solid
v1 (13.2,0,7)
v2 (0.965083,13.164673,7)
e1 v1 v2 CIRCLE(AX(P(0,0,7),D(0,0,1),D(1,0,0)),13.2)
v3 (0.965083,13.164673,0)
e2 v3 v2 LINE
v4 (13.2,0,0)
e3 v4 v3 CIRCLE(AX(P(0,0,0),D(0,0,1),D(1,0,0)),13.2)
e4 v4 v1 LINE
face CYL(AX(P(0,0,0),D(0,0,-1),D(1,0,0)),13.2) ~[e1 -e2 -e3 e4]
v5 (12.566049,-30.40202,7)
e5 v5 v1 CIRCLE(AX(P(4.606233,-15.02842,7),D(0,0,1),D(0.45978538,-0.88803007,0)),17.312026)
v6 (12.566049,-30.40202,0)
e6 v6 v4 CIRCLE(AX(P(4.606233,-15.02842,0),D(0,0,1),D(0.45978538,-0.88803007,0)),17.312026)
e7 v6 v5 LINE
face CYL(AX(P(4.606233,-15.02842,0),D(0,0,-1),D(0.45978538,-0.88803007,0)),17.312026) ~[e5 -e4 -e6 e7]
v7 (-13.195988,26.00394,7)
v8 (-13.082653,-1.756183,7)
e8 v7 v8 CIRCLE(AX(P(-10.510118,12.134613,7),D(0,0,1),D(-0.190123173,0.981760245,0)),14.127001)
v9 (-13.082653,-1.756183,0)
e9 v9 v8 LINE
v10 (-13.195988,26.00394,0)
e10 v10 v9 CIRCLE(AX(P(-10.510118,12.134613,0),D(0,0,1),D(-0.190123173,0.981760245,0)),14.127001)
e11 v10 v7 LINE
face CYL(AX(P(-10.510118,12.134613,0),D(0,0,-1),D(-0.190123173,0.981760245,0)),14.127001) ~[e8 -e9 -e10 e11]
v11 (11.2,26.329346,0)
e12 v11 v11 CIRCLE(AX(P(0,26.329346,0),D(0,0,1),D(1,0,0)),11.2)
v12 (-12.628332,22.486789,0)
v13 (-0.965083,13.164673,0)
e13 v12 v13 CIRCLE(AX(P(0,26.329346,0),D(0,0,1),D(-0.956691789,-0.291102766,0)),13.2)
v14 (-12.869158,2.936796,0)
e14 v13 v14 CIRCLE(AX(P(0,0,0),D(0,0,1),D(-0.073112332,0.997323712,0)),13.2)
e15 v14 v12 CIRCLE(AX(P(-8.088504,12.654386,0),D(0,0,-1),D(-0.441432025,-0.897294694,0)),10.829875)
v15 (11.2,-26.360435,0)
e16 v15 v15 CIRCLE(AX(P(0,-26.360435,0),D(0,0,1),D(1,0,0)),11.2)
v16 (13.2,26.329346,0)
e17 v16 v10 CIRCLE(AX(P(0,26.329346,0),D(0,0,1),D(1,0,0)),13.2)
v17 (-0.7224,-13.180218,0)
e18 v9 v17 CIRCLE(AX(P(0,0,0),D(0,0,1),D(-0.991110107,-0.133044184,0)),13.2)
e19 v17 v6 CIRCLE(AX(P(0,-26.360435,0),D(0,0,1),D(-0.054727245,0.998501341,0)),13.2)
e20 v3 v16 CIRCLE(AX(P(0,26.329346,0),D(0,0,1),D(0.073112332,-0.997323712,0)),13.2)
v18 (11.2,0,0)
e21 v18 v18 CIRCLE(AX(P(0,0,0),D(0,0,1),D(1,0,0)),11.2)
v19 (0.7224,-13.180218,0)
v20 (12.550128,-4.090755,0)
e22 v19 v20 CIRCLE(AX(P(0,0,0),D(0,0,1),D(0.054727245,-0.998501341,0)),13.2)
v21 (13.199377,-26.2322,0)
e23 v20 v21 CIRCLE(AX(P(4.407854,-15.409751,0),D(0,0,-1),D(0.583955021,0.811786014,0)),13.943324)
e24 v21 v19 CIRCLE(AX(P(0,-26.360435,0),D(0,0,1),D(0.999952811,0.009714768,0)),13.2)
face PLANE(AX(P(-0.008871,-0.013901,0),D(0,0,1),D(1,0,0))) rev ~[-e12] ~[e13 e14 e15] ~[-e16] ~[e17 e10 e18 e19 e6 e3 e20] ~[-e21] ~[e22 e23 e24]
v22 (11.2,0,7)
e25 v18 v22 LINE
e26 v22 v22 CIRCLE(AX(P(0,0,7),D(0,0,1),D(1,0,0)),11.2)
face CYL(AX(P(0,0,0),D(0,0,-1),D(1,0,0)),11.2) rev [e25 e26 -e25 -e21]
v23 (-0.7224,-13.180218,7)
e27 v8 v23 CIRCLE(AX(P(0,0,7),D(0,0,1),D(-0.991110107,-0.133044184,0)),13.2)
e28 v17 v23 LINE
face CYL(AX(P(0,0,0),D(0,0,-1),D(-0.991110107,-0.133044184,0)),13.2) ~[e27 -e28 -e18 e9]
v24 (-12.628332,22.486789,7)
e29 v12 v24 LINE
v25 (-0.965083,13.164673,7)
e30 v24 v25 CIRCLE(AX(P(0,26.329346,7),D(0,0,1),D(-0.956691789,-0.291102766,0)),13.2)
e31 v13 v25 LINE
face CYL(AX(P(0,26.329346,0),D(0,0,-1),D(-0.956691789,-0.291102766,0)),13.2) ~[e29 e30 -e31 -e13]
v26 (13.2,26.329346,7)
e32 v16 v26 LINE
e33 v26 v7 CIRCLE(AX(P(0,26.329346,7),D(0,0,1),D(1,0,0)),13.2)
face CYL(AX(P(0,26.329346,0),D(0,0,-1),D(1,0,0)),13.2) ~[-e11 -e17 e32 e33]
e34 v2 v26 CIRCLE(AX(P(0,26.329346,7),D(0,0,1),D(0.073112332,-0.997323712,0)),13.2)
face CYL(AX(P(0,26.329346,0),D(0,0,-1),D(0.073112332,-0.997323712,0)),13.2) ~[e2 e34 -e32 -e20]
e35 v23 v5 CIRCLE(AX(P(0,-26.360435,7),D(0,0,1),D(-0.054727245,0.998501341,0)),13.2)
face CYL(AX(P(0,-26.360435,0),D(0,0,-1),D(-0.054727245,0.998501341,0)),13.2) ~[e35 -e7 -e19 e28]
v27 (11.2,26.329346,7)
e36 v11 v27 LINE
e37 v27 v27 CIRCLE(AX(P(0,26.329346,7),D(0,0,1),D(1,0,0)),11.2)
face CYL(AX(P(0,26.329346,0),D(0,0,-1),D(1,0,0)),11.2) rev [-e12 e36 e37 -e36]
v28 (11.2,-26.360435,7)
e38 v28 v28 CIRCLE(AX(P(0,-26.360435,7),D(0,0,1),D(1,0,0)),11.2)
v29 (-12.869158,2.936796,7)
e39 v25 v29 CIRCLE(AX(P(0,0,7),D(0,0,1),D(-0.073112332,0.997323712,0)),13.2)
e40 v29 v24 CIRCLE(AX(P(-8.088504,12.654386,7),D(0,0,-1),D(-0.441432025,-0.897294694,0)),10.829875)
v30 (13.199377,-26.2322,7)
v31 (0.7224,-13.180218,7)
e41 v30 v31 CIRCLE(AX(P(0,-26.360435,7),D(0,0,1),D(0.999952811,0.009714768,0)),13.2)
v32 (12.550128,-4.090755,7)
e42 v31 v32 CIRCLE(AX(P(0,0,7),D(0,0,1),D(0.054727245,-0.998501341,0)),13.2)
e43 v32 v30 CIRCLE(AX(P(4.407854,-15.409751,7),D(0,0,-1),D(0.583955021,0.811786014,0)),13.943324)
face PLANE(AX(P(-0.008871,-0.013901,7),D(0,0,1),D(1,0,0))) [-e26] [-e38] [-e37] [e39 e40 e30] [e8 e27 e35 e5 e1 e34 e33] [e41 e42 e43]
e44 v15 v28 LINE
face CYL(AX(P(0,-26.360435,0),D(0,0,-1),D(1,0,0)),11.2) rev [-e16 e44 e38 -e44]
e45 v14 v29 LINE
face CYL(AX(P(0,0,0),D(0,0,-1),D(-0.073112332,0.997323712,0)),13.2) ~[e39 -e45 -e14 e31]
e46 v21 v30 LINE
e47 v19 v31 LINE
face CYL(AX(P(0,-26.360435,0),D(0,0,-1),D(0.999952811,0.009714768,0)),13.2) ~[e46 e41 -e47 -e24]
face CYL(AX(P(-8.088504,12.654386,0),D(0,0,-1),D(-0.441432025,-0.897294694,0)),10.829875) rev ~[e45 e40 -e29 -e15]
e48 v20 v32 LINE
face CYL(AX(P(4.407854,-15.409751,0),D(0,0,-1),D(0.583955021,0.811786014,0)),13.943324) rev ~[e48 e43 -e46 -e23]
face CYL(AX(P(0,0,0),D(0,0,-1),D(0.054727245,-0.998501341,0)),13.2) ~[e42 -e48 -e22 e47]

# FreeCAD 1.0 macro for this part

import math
import FreeCAD as App
import Part
import Sketcher

V = App.Vector

doc = App.newDocument("Part")
params = doc.addObject("Spreadsheet::Sheet", "Params")
for row, (alias, value) in enumerate([
    ("sketch1_diameter", "22.4 mm"),
    ("sketch1_radius", "13.2 mm"),
    ("pad1_length", "7 mm"),
], start=1):
    params.set(f"A{row}", alias)
    params.set(f"B{row}", "=" + value)
    params.setAlias(f"B{row}", alias)

body = doc.addObject("PartDesign::Body", "Body")

# Sketch on XY plane
sketch1 = body.newObject("Sketcher::SketchObject", "Sketch")
sketch1.AttachmentSupport = (doc.getObject("XY_Plane"), [""])
sketch1.MapMode = "FlatFace"
sketch1.addGeometry(Part.ArcOfCircle(Part.Circle(V(0, 0, 0), V(0, 0, 1), 13), math.radians(0), math.radians(86)), False)
sketch1.addGeometry(Part.ArcOfCircle(Part.Circle(V(0, 26, 0), V(0, 0, 1), 13), math.radians(-86), math.radians(0)), False)
sketch1.addGeometry(Part.ArcOfCircle(Part.Circle(V(0, 26, 0), V(0, 0, 1), 13), math.radians(0), math.radians(181)), False)
sketch1.addGeometry(Part.ArcOfCircle(Part.Circle(V(-11, 12, 0), V(0, 0, 1), 14), math.radians(101), math.radians(260)), False)
sketch1.addGeometry(Part.ArcOfCircle(Part.Circle(V(0, 0, 0), V(0, 0, 1), 13), math.radians(-172), math.radians(-93)), False)
sketch1.addGeometry(Part.ArcOfCircle(Part.Circle(V(0, -26, 0), V(0, 0, 1), 13), math.radians(93), math.radians(342)), False)
sketch1.addGeometry(Part.ArcOfCircle(Part.Circle(V(5, -15, 0), V(0, 0, 1), 17), math.radians(-63), math.radians(60)), False)
sketch1.addGeometry(Part.ArcOfCircle(Part.Circle(V(0, 0, 0), V(0, 0, 1), 13), math.radians(-87), math.radians(-18)), False)
sketch1.addGeometry(Part.ArcOfCircle(Part.Circle(V(4, -15, 0), V(0, 0, 1), 14), math.radians(-51), math.radians(54)), False)
sketch1.addGeometry(Part.ArcOfCircle(Part.Circle(V(0, -26, 0), V(0, 0, 1), 13), math.radians(1), math.radians(87)), False)
sketch1.addGeometry(Part.Circle(V(0, -26, 0), V(0, 0, 1), 11), False)
sketch1.addGeometry(Part.ArcOfCircle(Part.Circle(V(0, 26, 0), V(0, 0, 1), 13), math.radians(-163), math.radians(-94)), False)
sketch1.addGeometry(Part.ArcOfCircle(Part.Circle(V(0, 0, 0), V(0, 0, 1), 13), math.radians(94), math.radians(167)), False)
sketch1.addGeometry(Part.ArcOfCircle(Part.Circle(V(-8, 13, 0), V(0, 0, 1), 11), math.radians(115), math.radians(244)), False)
sketch1.addGeometry(Part.Circle(V(0, 0, 0), V(0, 0, 1), 11), False)
sketch1.addGeometry(Part.Circle(V(0, 26, 0), V(0, 0, 1), 11), False)
sketch1.addConstraint(Sketcher.Constraint("Coincident", 0, 2, 1, 1))
sketch1.addConstraint(Sketcher.Constraint("Tangent", 1, 2, 2, 1))
sketch1.addConstraint(Sketcher.Constraint("Coincident", 2, 2, 3, 1))
sketch1.addConstraint(Sketcher.Constraint("Coincident", 3, 2, 4, 1))
sketch1.addConstraint(Sketcher.Constraint("Coincident", 4, 2, 5, 1))
sketch1.addConstraint(Sketcher.Constraint("Coincident", 5, 2, 6, 1))
sketch1.addConstraint(Sketcher.Constraint("Coincident", 6, 2, 0, 1))
sketch1.addConstraint(Sketcher.Constraint("Coincident", 7, 2, 8, 2))
sketch1.addConstraint(Sketcher.Constraint("Coincident", 8, 1, 9, 1))
sketch1.addConstraint(Sketcher.Constraint("Coincident", 9, 2, 7, 1))
sketch1.addConstraint(Sketcher.Constraint("Coincident", 11, 2, 12, 1))
sketch1.addConstraint(Sketcher.Constraint("Coincident", 12, 2, 13, 2))
sketch1.addConstraint(Sketcher.Constraint("Coincident", 13, 1, 11, 1))
sketch1.addConstraint(Sketcher.Constraint("Coincident", 0, 3, -1, 1))
sketch1.addConstraint(Sketcher.Constraint("Coincident", 4, 3, -1, 1))
sketch1.addConstraint(Sketcher.Constraint("Coincident", 7, 3, -1, 1))
sketch1.addConstraint(Sketcher.Constraint("Coincident", 12, 3, -1, 1))
sketch1.addConstraint(Sketcher.Constraint("Coincident", 14, 3, -1, 1))
sketch1.addConstraint(Sketcher.Constraint("Coincident", 9, 3, 5, 3))
sketch1.addConstraint(Sketcher.Constraint("Coincident", 10, 3, 5, 3))
sketch1.addConstraint(Sketcher.Constraint("Coincident", 11, 3, 1, 3))
sketch1.addConstraint(Sketcher.Constraint("Coincident", 15, 3, 1, 3))
sketch1.addConstraint(Sketcher.Constraint("Equal", 0, 1))
sketch1.addConstraint(Sketcher.Constraint("Equal", 1, 2))
sketch1.addConstraint(Sketcher.Constraint("Equal", 2, 4))
sketch1.addConstraint(Sketcher.Constraint("Equal", 4, 5))
sketch1.addConstraint(Sketcher.Constraint("Equal", 5, 7))
sketch1.addConstraint(Sketcher.Constraint("Equal", 7, 9))
sketch1.addConstraint(Sketcher.Constraint("Equal", 9, 11))
sketch1.addConstraint(Sketcher.Constraint("Equal", 11, 12))
sketch1.addConstraint(Sketcher.Constraint("Equal", 10, 14))
sketch1.addConstraint(Sketcher.Constraint("Equal", 14, 15))
sketch1.addConstraint(Sketcher.Constraint("PointOnObject", 1, 3, -2))
sketch1.addConstraint(Sketcher.Constraint("PointOnObject", 5, 3, -2))
sketch1.addConstraint(Sketcher.Constraint("PointOnObject", 6, 2, -1))
sketch1.addConstraint(Sketcher.Constraint("Horizontal", 15, 3, 1, 2))
sketch1.addConstraint(Sketcher.Constraint("Diameter", 10, 22.4))
sketch1.addConstraint(Sketcher.Constraint("Radius", 0, 13.2))
sketch1.addConstraint(Sketcher.Constraint("Radius", 3, 14.127001))
sketch1.addConstraint(Sketcher.Constraint("Radius", 6, 17.312026))
sketch1.addConstraint(Sketcher.Constraint("Radius", 8, 13.943324))
sketch1.addConstraint(Sketcher.Constraint("Radius", 13, 10.829875))
sketch1.addConstraint(Sketcher.Constraint("DistanceX", 4, 2, -1, 1, 0.7224))
sketch1.addConstraint(Sketcher.Constraint("DistanceY", 8, 1, -1, 1, 26.2322))
sketch1.addConstraint(Sketcher.Constraint("DistanceX", 3, 3, 0, 2, 11.475201))
sketch1.addConstraint(Sketcher.Constraint("DistanceY", 5, 2, 6, 3, 15.3736))
sketch1.addConstraint(Sketcher.Constraint("DistanceX", 3, 3, -1, 1, 10.510118))
sketch1.addConstraint(Sketcher.Constraint("DistanceY", 8, 3, -1, 1, 15.409751))
sketch1.addConstraint(Sketcher.Constraint("DistanceX", 2, 2, -1, 1, 13.195988))
sketch1.addConstraint(Sketcher.Constraint("DistanceX", 13, 1, -1, 1, 12.628332))
sketch1.addConstraint(Sketcher.Constraint("DistanceY", 13, 3, 15, 3, 13.67496))
sketch1.setExpression("Constraints[36]", "Params.sketch1_diameter")
sketch1.setExpression("Constraints[37]", "Params.sketch1_radius")
pad1 = body.newObject("PartDesign::Pad", "Pad")
pad1.Profile = sketch1
pad1.setExpression("Length", "Params.pad1_length")

doc.recompute()
